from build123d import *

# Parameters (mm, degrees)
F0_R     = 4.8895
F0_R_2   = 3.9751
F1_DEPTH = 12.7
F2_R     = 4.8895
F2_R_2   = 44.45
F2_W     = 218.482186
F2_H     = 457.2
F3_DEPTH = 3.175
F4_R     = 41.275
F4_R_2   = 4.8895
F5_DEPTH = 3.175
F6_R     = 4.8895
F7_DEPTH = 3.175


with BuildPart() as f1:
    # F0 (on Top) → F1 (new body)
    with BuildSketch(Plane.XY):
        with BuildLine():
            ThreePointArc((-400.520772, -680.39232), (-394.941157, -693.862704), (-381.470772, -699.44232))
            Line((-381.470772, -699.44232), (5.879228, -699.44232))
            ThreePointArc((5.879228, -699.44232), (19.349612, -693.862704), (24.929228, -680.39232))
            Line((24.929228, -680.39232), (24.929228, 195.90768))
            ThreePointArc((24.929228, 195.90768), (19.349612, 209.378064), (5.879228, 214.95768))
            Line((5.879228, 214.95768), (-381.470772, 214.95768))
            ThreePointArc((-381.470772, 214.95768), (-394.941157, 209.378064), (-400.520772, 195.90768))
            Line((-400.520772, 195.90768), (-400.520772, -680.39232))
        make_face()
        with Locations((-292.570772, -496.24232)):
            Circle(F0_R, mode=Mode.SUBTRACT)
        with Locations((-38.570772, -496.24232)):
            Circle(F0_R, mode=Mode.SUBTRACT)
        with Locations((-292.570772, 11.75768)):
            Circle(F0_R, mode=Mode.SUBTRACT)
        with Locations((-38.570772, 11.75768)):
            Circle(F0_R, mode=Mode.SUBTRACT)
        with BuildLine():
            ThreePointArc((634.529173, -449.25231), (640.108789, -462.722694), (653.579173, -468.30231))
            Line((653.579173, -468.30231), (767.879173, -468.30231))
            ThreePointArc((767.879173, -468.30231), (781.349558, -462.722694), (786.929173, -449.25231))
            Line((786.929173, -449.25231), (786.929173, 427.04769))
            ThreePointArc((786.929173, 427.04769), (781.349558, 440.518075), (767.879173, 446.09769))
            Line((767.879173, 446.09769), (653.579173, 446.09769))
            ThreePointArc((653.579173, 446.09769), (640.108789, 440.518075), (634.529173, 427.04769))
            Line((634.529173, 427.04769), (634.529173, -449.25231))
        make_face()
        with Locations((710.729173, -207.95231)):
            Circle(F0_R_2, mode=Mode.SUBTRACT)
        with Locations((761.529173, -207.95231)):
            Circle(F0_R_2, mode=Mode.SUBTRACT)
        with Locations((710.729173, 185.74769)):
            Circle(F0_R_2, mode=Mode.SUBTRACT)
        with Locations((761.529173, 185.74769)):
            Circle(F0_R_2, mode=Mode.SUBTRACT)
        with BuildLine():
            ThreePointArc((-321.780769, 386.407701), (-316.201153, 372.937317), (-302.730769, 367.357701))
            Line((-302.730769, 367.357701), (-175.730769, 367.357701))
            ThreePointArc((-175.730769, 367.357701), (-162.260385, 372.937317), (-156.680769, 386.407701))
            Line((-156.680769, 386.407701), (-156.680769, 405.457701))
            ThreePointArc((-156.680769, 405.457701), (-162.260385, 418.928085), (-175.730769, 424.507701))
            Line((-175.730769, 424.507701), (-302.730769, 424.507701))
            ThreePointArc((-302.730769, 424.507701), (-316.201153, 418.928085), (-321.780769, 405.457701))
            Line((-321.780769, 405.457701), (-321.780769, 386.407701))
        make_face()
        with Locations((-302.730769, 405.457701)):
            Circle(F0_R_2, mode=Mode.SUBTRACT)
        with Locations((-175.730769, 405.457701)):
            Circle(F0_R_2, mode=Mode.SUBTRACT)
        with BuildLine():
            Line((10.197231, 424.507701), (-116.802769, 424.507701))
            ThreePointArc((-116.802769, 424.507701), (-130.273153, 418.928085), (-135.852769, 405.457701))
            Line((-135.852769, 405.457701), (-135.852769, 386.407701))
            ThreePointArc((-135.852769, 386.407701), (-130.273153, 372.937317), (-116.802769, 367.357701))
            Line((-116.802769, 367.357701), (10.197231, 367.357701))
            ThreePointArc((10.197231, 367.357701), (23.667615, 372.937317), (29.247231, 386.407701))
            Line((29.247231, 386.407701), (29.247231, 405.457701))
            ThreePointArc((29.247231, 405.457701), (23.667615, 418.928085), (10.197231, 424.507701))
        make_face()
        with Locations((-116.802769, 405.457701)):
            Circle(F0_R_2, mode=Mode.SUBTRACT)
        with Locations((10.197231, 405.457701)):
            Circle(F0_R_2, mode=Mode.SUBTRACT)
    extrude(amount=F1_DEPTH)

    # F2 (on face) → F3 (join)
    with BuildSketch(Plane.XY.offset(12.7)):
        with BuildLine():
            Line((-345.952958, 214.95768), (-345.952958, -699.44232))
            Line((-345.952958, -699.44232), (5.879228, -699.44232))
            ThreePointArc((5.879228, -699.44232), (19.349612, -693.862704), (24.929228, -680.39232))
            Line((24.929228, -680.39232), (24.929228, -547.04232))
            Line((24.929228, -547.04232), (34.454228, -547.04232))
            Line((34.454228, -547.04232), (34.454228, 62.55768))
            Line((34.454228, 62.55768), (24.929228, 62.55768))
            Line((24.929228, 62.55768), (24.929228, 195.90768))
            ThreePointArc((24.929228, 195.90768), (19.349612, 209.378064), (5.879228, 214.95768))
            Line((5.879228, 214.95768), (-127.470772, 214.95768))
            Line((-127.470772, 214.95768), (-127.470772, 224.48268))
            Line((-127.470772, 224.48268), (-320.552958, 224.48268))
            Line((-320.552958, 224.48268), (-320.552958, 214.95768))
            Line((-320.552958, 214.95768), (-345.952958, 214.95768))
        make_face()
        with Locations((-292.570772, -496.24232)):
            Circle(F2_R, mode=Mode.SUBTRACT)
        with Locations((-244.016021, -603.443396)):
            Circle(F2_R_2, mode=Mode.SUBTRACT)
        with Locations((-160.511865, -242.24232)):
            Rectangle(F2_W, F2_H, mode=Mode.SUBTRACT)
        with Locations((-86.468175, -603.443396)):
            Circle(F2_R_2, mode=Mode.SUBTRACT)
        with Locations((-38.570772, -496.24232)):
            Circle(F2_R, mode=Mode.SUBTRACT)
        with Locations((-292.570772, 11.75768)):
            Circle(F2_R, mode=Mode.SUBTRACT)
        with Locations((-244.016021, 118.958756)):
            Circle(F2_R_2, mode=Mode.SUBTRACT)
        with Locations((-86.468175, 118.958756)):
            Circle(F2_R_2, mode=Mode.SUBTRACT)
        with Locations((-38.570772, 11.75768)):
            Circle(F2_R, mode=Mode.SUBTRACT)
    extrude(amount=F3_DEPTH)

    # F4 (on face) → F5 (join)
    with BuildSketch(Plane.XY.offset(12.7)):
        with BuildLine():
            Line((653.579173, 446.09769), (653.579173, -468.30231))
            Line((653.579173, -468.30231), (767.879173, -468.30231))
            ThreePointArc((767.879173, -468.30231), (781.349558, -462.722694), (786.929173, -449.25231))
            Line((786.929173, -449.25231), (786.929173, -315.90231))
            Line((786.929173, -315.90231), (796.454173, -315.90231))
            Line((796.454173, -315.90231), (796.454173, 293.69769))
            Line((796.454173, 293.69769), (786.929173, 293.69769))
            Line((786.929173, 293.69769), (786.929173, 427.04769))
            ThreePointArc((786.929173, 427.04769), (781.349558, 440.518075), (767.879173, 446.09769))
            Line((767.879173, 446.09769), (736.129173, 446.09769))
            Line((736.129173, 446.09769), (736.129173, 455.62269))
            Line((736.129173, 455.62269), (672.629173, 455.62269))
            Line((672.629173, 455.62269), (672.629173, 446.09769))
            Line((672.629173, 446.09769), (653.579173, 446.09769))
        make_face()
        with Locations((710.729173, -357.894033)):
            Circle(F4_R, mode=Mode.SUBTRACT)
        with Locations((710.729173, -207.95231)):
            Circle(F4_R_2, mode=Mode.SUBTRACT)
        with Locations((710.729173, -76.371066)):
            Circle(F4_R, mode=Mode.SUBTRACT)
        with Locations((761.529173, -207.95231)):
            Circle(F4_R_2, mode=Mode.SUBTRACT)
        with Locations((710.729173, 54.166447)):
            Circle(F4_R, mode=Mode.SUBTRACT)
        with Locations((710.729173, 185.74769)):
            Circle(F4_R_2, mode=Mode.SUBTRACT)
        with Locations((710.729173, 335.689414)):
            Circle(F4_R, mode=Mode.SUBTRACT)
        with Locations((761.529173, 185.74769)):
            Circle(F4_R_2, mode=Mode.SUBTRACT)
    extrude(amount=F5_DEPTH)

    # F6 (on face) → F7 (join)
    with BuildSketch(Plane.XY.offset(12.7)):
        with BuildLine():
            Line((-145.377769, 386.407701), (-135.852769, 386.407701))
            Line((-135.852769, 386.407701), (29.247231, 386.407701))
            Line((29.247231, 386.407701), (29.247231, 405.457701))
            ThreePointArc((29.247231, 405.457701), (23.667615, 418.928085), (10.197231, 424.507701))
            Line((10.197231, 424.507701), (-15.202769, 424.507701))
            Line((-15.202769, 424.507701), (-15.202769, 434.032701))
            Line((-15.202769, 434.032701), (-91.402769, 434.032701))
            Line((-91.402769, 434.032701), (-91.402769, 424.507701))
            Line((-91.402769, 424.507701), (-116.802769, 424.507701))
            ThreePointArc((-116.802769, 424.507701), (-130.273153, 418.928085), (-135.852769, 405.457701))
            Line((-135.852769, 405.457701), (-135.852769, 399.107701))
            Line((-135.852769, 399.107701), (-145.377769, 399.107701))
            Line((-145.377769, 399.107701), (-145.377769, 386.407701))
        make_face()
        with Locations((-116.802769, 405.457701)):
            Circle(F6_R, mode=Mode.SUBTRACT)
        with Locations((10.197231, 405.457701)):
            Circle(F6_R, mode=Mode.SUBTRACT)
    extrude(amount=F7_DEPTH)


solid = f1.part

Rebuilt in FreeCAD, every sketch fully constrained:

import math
import FreeCAD as App
import Part
import Sketcher
Q = App.Units.Quantity

doc = App.newDocument("Part")
body = doc.addObject("PartDesign::Body", "Body")
body.AllowCompound = True

# Sketch on XY plane
sketch1 = body.newObject("Sketcher::SketchObject", "Sketch")
sketch1.AttachmentSupport = (doc.getObject("XY_Plane"), [""])
sketch1.MapMode = "FlatFace"
sketch1.addGeometry(Part.ArcOfCircle(Part.Circle(App.Vector(-381.470773, -680.392321, 0), App.Vector(0, 0, 1), 19.049999), math.radians(179.999997), math.radians(270.000003)), False)
sketch1.addGeometry(Part.LineSegment(App.Vector(-381.470772, -699.44232, 0), App.Vector(5.879228, -699.44232, 0)), False)
sketch1.addGeometry(Part.ArcOfCircle(Part.Circle(App.Vector(5.879227, -680.392319, 0), App.Vector(0, 0, 1), 19.050001), math.radians(-89.999998), math.radians(-0.000002)), False)
sketch1.addGeometry(Part.LineSegment(App.Vector(24.929228, -680.39232, 0), App.Vector(24.929228, 195.90768, 0)), False)
sketch1.addGeometry(Part.ArcOfCircle(Part.Circle(App.Vector(5.879227, 195.907679, 0), App.Vector(0, 0, 1), 19.050001), math.radians(0.000002), math.radians(89.999998)), False)
sketch1.addGeometry(Part.LineSegment(App.Vector(5.879228, 214.95768, 0), App.Vector(-381.470772, 214.95768, 0)), False)
sketch1.addGeometry(Part.ArcOfCircle(Part.Circle(App.Vector(-381.470773, 195.907681, 0), App.Vector(0, 0, 1), 19.049999), math.radians(89.999997), math.radians(180.000003)), False)
sketch1.addGeometry(Part.LineSegment(App.Vector(-400.520772, 195.90768, 0), App.Vector(-400.520772, -680.39232, 0)), False)
sketch1.addGeometry(Part.Circle(App.Vector(-292.570772, -496.24232, 0), App.Vector(0, 0, 1), 4.8895), False)
sketch1.addGeometry(Part.Circle(App.Vector(-38.570772, -496.24232, 0), App.Vector(0, 0, 1), 4.8895), False)
sketch1.addGeometry(Part.Circle(App.Vector(-292.570772, 11.75768, 0), App.Vector(0, 0, 1), 4.8895), False)
sketch1.addGeometry(Part.Circle(App.Vector(-38.570772, 11.75768, 0), App.Vector(0, 0, 1), 4.8895), False)
sketch1.addGeometry(Part.ArcOfCircle(Part.Circle(App.Vector(653.579174, -449.252309, 0), App.Vector(0, 0, 1), 19.050001), math.radians(-179.999998), math.radians(-90.000002)), False)
sketch1.addGeometry(Part.LineSegment(App.Vector(653.579173, -468.30231, 0), App.Vector(767.879173, -468.30231, 0)), False)
sketch1.addGeometry(Part.ArcOfCircle(Part.Circle(App.Vector(767.879174, -449.252311, 0), App.Vector(0, 0, 1), 19.049999), math.radians(-90.000003), math.radians(0.000003)), False)
sketch1.addGeometry(Part.LineSegment(App.Vector(786.929173, -449.25231, 0), App.Vector(786.929173, 427.04769, 0)), False)
sketch1.addGeometry(Part.ArcOfCircle(Part.Circle(App.Vector(767.879176, 427.047693, 0), App.Vector(0, 0, 1), 19.049997), math.radians(-0.000008), math.radians(90.000008)), False)
sketch1.addGeometry(Part.LineSegment(App.Vector(767.879173, 446.09769, 0), App.Vector(653.579173, 446.09769, 0)), False)
sketch1.addGeometry(Part.ArcOfCircle(Part.Circle(App.Vector(653.579172, 427.047691, 0), App.Vector(0, 0, 1), 19.049999), math.radians(89.999997), math.radians(180.000003)), False)
sketch1.addGeometry(Part.LineSegment(App.Vector(634.529173, 427.04769, 0), App.Vector(634.529173, -449.25231, 0)), False)
sketch1.addGeometry(Part.Circle(App.Vector(710.729173, -207.95231, 0), App.Vector(0, 0, 1), 3.9751), False)
sketch1.addGeometry(Part.Circle(App.Vector(761.529173, -207.95231, 0), App.Vector(0, 0, 1), 3.9751), False)
sketch1.addGeometry(Part.Circle(App.Vector(710.729173, 185.74769, 0), App.Vector(0, 0, 1), 3.9751), False)
sketch1.addGeometry(Part.Circle(App.Vector(761.529173, 185.74769, 0), App.Vector(0, 0, 1), 3.9751), False)
sketch1.addGeometry(Part.ArcOfCircle(Part.Circle(App.Vector(-302.730768, 386.407702, 0), App.Vector(0, 0, 1), 19.050001), math.radians(-179.999998), math.radians(-90.000002)), False)
sketch1.addGeometry(Part.LineSegment(App.Vector(-302.730769, 367.357701, 0), App.Vector(-175.730769, 367.357701, 0)), False)
sketch1.addGeometry(Part.ArcOfCircle(Part.Circle(App.Vector(-175.73077, 386.407702, 0), App.Vector(0, 0, 1), 19.050001), math.radians(-89.999998), math.radians(-0.000002)), False)
sketch1.addGeometry(Part.LineSegment(App.Vector(-156.680769, 386.407701, 0), App.Vector(-156.680769, 405.457701, 0)), False)
sketch1.addGeometry(Part.ArcOfCircle(Part.Circle(App.Vector(-175.73077, 405.4577, 0), App.Vector(0, 0, 1), 19.050001), math.radians(0.000002), math.radians(89.999998)), False)
sketch1.addGeometry(Part.LineSegment(App.Vector(-175.730769, 424.507701, 0), App.Vector(-302.730769, 424.507701, 0)), False)
sketch1.addGeometry(Part.ArcOfCircle(Part.Circle(App.Vector(-302.730768, 405.4577, 0), App.Vector(0, 0, 1), 19.050001), math.radians(90.000002), math.radians(179.999998)), False)
sketch1.addGeometry(Part.LineSegment(App.Vector(-321.780769, 405.457701, 0), App.Vector(-321.780769, 386.407701, 0)), False)
sketch1.addGeometry(Part.Circle(App.Vector(-302.730769, 405.457701, 0), App.Vector(0, 0, 1), 3.9751), False)
sketch1.addGeometry(Part.Circle(App.Vector(-175.730769, 405.457701, 0), App.Vector(0, 0, 1), 3.9751), False)
sketch1.addGeometry(Part.LineSegment(App.Vector(10.197231, 424.507701, 0), App.Vector(-116.802769, 424.507701, 0)), False)
sketch1.addGeometry(Part.ArcOfCircle(Part.Circle(App.Vector(-116.802768, 405.4577, 0), App.Vector(0, 0, 1), 19.050001), math.radians(90.000002), math.radians(179.999998)), False)
sketch1.addGeometry(Part.LineSegment(App.Vector(-135.852769, 405.457701, 0), App.Vector(-135.852769, 386.407701, 0)), False)
sketch1.addGeometry(Part.ArcOfCircle(Part.Circle(App.Vector(-116.802768, 386.407702, 0), App.Vector(0, 0, 1), 19.050001), math.radians(-179.999998), math.radians(-90.000002)), False)
sketch1.addGeometry(Part.LineSegment(App.Vector(-116.802769, 367.357701, 0), App.Vector(10.197231, 367.357701, 0)), False)
sketch1.addGeometry(Part.ArcOfCircle(Part.Circle(App.Vector(10.19723, 386.407702, 0), App.Vector(0, 0, 1), 19.050001), math.radians(-89.999998), math.radians(-0.000002)), False)
sketch1.addGeometry(Part.LineSegment(App.Vector(29.247231, 386.407701, 0), App.Vector(29.247231, 405.457701, 0)), False)
sketch1.addGeometry(Part.ArcOfCircle(Part.Circle(App.Vector(10.19723, 405.4577, 0), App.Vector(0, 0, 1), 19.050001), math.radians(0.000002), math.radians(89.999998)), False)
sketch1.addGeometry(Part.Circle(App.Vector(-116.802769, 405.457701, 0), App.Vector(0, 0, 1), 3.9751), False)
sketch1.addGeometry(Part.Circle(App.Vector(10.197231, 405.457701, 0), App.Vector(0, 0, 1), 3.9751), False)
sketch1.addConstraint(Sketcher.Constraint("Tangent", 0, 2, 1, 1))
sketch1.addConstraint(Sketcher.Constraint("Tangent", 1, 2, 2, 1))
sketch1.addConstraint(Sketcher.Constraint("Tangent", 2, 2, 3, 1))
sketch1.addConstraint(Sketcher.Constraint("Tangent", 3, 2, 4, 1))
sketch1.addConstraint(Sketcher.Constraint("Tangent", 4, 2, 5, 1))
sketch1.addConstraint(Sketcher.Constraint("Tangent", 5, 2, 6, 1))
sketch1.addConstraint(Sketcher.Constraint("Tangent", 6, 2, 7, 1))
sketch1.addConstraint(Sketcher.Constraint("Tangent", 7, 2, 0, 1))
sketch1.addConstraint(Sketcher.Constraint("Tangent", 12, 2, 13, 1))
sketch1.addConstraint(Sketcher.Constraint("Tangent", 13, 2, 14, 1))
sketch1.addConstraint(Sketcher.Constraint("Tangent", 14, 2, 15, 1))
sketch1.addConstraint(Sketcher.Constraint("Tangent", 15, 2, 16, 1))
sketch1.addConstraint(Sketcher.Constraint("Tangent", 16, 2, 17, 1))
sketch1.addConstraint(Sketcher.Constraint("Tangent", 17, 2, 18, 1))
sketch1.addConstraint(Sketcher.Constraint("Tangent", 18, 2, 19, 1))
sketch1.addConstraint(Sketcher.Constraint("Tangent", 19, 2, 12, 1))
sketch1.addConstraint(Sketcher.Constraint("Tangent", 24, 2, 25, 1))
sketch1.addConstraint(Sketcher.Constraint("Tangent", 25, 2, 26, 1))
sketch1.addConstraint(Sketcher.Constraint("Tangent", 26, 2, 27, 1))
sketch1.addConstraint(Sketcher.Constraint("Tangent", 27, 2, 28, 1))
sketch1.addConstraint(Sketcher.Constraint("Tangent", 28, 2, 29, 1))
sketch1.addConstraint(Sketcher.Constraint("Tangent", 29, 2, 30, 1))
sketch1.addConstraint(Sketcher.Constraint("Tangent", 30, 2, 31, 1))
sketch1.addConstraint(Sketcher.Constraint("Tangent", 31, 2, 24, 1))
sketch1.addConstraint(Sketcher.Constraint("Tangent", 34, 2, 35, 1))
sketch1.addConstraint(Sketcher.Constraint("Tangent", 35, 2, 36, 1))
sketch1.addConstraint(Sketcher.Constraint("Tangent", 36, 2, 37, 1))
sketch1.addConstraint(Sketcher.Constraint("Tangent", 37, 2, 38, 1))
sketch1.addConstraint(Sketcher.Constraint("Tangent", 38, 2, 39, 1))
sketch1.addConstraint(Sketcher.Constraint("Tangent", 39, 2, 40, 1))
sketch1.addConstraint(Sketcher.Constraint("Tangent", 40, 2, 41, 1))
sketch1.addConstraint(Sketcher.Constraint("Tangent", 41, 2, 34, 1))
sketch1.addConstraint(Sketcher.Constraint("Horizontal", 1))
sketch1.addConstraint(Sketcher.Constraint("Vertical", 3))
sketch1.addConstraint(Sketcher.Constraint("Horizontal", 5))
sketch1.addConstraint(Sketcher.Constraint("Vertical", 7))
sketch1.addConstraint(Sketcher.Constraint("Horizontal", 13))
sketch1.addConstraint(Sketcher.Constraint("Vertical", 15))
sketch1.addConstraint(Sketcher.Constraint("Horizontal", 17))
sketch1.addConstraint(Sketcher.Constraint("Vertical", 19))
sketch1.addConstraint(Sketcher.Constraint("Horizontal", 25))
sketch1.addConstraint(Sketcher.Constraint("Vertical", 27))
sketch1.addConstraint(Sketcher.Constraint("Horizontal", 29))
sketch1.addConstraint(Sketcher.Constraint("Vertical", 31))
sketch1.addConstraint(Sketcher.Constraint("Horizontal", 34))
sketch1.addConstraint(Sketcher.Constraint("Vertical", 36))
sketch1.addConstraint(Sketcher.Constraint("Horizontal", 38))
sketch1.addConstraint(Sketcher.Constraint("Vertical", 40))
sketch1.addConstraint(Sketcher.Constraint("Coincident", 32, 3, 30, 3))
sketch1.addConstraint(Sketcher.Constraint("Coincident", 33, 3, 28, 3))
sketch1.addConstraint(Sketcher.Constraint("Coincident", 42, 3, 35, 3))
sketch1.addConstraint(Sketcher.Constraint("Coincident", 43, 3, 41, 3))
sketch1.addConstraint(Sketcher.Constraint("Equal", 0, 2))
sketch1.addConstraint(Sketcher.Constraint("Equal", 2, 4))
sketch1.addConstraint(Sketcher.Constraint("Equal", 4, 6))
sketch1.addConstraint(Sketcher.Constraint("Equal", 8, 9))
sketch1.addConstraint(Sketcher.Constraint("Equal", 9, 10))
sketch1.addConstraint(Sketcher.Constraint("Equal", 10, 11))
sketch1.addConstraint(Sketcher.Constraint("Equal", 6, 12))
sketch1.addConstraint(Sketcher.Constraint("Equal", 12, 14))
sketch1.addConstraint(Sketcher.Constraint("Equal", 14, 16))
sketch1.addConstraint(Sketcher.Constraint("Equal", 16, 18))
sketch1.addConstraint(Sketcher.Constraint("Equal", 20, 21))
sketch1.addConstraint(Sketcher.Constraint("Equal", 21, 22))
sketch1.addConstraint(Sketcher.Constraint("Equal", 22, 23))
sketch1.addConstraint(Sketcher.Constraint("Equal", 18, 24))
sketch1.addConstraint(Sketcher.Constraint("Equal", 24, 26))
sketch1.addConstraint(Sketcher.Constraint("Equal", 26, 28))
sketch1.addConstraint(Sketcher.Constraint("Equal", 28, 30))
sketch1.addConstraint(Sketcher.Constraint("Equal", 23, 32))
sketch1.addConstraint(Sketcher.Constraint("Equal", 32, 33))
sketch1.addConstraint(Sketcher.Constraint("Equal", 30, 35))
sketch1.addConstraint(Sketcher.Constraint("Equal", 35, 37))
sketch1.addConstraint(Sketcher.Constraint("Equal", 37, 39))
sketch1.addConstraint(Sketcher.Constraint("Equal", 39, 41))
sketch1.addConstraint(Sketcher.Constraint("Equal", 33, 42))
sketch1.addConstraint(Sketcher.Constraint("Equal", 42, 43))
sketch1.addConstraint(Sketcher.Constraint("Horizontal", 8, 3, 9, 3))
sketch1.addConstraint(Sketcher.Constraint("Horizontal", 10, 3, 11, 3))
sketch1.addConstraint(Sketcher.Constraint("Horizontal", 20, 3, 21, 3))
sketch1.addConstraint(Sketcher.Constraint("Horizontal", 22, 3, 23, 3))
sketch1.addConstraint(Sketcher.Constraint("Horizontal", 33, 3, 35, 3))
sketch1.addConstraint(Sketcher.Constraint("Horizontal", 26, 3, 37, 3))
sketch1.addConstraint(Sketcher.Constraint("Vertical", 8, 3, 10, 3))
sketch1.addConstraint(Sketcher.Constraint("Vertical", 9, 3, 11, 3))
sketch1.addConstraint(Sketcher.Constraint("Vertical", 20, 3, 22, 3))
sketch1.addConstraint(Sketcher.Constraint("Vertical", 21, 3, 23, 3))
sketch1.addConstraint(Sketcher.Constraint("Equal", 29, 34))
sketch1.addConstraint(Sketcher.Constraint("Equal", 7, 15))
sketch1.addConstraint(Sketcher.Constraint("DistanceX", 25, 1, 25, 2, Q("5 in")))
sketch1.addConstraint(Sketcher.Constraint("Radius", 0, Q("0.75 in")))
sketch1.addConstraint(Sketcher.Constraint("Diameter", 8, Q("0.385 in")))
sketch1.addConstraint(Sketcher.Constraint("Diameter", 20, Q("0.313 in")))
sketch1.addConstraint(Sketcher.Constraint("DistanceX", 13, 1, 13, 2, Q("4.5 in")))
sketch1.addConstraint(Sketcher.Constraint("DistanceY", 3, 1, 3, 2, Q("34.5 in")))
sketch1.addConstraint(Sketcher.Constraint("DistanceX", 8, 3, 9, 3, Q("10 in")))
sketch1.addConstraint(Sketcher.Constraint("DistanceY", 8, 3, 10, 3, Q("20 in")))
sketch1.addConstraint(Sketcher.Constraint("DistanceY", 20, 3, 18, 3, Q("25 in")))
sketch1.addConstraint(Sketcher.Constraint("DistanceX", 20, 3, 21, 3, Q("2 in")))
sketch1.addConstraint(Sketcher.Constraint("DistanceY", 12, 3, 22, 3, Q("25 in")))
sketch1.addConstraint(Sketcher.Constraint("DistanceY", 0, 2, 8, 3, Q("8 in")))
sketch1.addConstraint(Sketcher.Constraint("DistanceX", 0, 3, 2, 2, Q("16 in")))
sketch1.addConstraint(Sketcher.Constraint("DistanceX", 21, 3, 14, 2, Q("1 in")))
sketch1.addConstraint(Sketcher.Constraint("DistanceY", 27, 1, 27, 2, Q("0.75 in")))
sketch1.addConstraint(Sketcher.Constraint("DistanceX", 0, 3, 8, 3, Q("3.5 in")))
sketch1.addConstraint(Sketcher.Constraint("DistanceX", 6, 3, 24, 3, Q("3.1000002 in")))
sketch1.addConstraint(Sketcher.Constraint("DistanceX", 33, 3, 35, 3, Q("2.32 in")))
sketch1.addConstraint(Sketcher.Constraint("DistanceY", -1, 1, 24, 3, Q("386.407702 mm")))
sketch1.addConstraint(Sketcher.Constraint("DistanceY", 0, 3, -1, 1, Q("680.392321 mm")))
sketch1.addConstraint(Sketcher.Constraint("DistanceX", 8, 3, -1, 1, Q("292.570772 mm")))
sketch1.addConstraint(Sketcher.Constraint("DistanceY", 12, 3, -1, 1, Q("449.252309 mm")))
sketch1.addConstraint(Sketcher.Constraint("DistanceX", -1, 1, 18, 3, Q("653.579172 mm")))
pad1 = body.newObject("PartDesign::Pad", "Pad")
pad1.Profile = sketch1
pad1.Length = Q("0.5 in")

# Sketch on XY plane
sketch2 = body.newObject("Sketcher::SketchObject", "Sketch001")
sketch2.AttachmentSupport = (doc.getObject("XY_Plane"), [""])
sketch2.MapMode = "FlatFace"
sketch2.AttachmentOffset = App.Placement(App.Vector(0, 0, 0.5 * 25.4), App.Rotation())
sketch2.addGeometry(Part.LineSegment(App.Vector(-345.952958, 214.95768, 0), App.Vector(-345.952958, -699.44232, 0)), False)
sketch2.addGeometry(Part.LineSegment(App.Vector(-345.952958, -699.44232, 0), App.Vector(5.879228, -699.44232, 0)), False)
sketch2.addGeometry(Part.ArcOfCircle(Part.Circle(App.Vector(5.879227, -680.392319, 0), App.Vector(0, 0, 1), 19.050001), math.radians(-89.999998), math.radians(-0.000002)), False)
sketch2.addGeometry(Part.LineSegment(App.Vector(24.929228, -680.39232, 0), App.Vector(24.929228, -547.04232, 0)), False)
sketch2.addGeometry(Part.LineSegment(App.Vector(24.929228, -547.04232, 0), App.Vector(34.454228, -547.04232, 0)), False)
sketch2.addGeometry(Part.LineSegment(App.Vector(34.454228, -547.04232, 0), App.Vector(34.454228, 62.55768, 0)), False)
sketch2.addGeometry(Part.LineSegment(App.Vector(34.454228, 62.55768, 0), App.Vector(24.929228, 62.55768, 0)), False)
sketch2.addGeometry(Part.LineSegment(App.Vector(24.929228, 62.55768, 0), App.Vector(24.929228, 195.90768, 0)), False)
sketch2.addGeometry(Part.ArcOfCircle(Part.Circle(App.Vector(5.879227, 195.907679, 0), App.Vector(0, 0, 1), 19.050001), math.radians(0.000002), math.radians(89.999998)), False)
sketch2.addGeometry(Part.LineSegment(App.Vector(5.879228, 214.95768, 0), App.Vector(-127.470772, 214.95768, 0)), False)
sketch2.addGeometry(Part.LineSegment(App.Vector(-127.470772, 214.95768, 0), App.Vector(-127.470772, 224.48268, 0)), False)
sketch2.addGeometry(Part.LineSegment(App.Vector(-127.470772, 224.48268, 0), App.Vector(-320.552958, 224.48268, 0)), False)
sketch2.addGeometry(Part.LineSegment(App.Vector(-320.552958, 224.48268, 0), App.Vector(-320.552958, 214.95768, 0)), False)
sketch2.addGeometry(Part.LineSegment(App.Vector(-320.552958, 214.95768, 0), App.Vector(-345.952958, 214.95768, 0)), False)
sketch2.addGeometry(Part.Circle(App.Vector(-244.016021, -603.443396, 0), App.Vector(0, 0, 1), 44.45), False)
sketch2.addGeometry(Part.Circle(App.Vector(-292.570772, -496.24232, 0), App.Vector(0, 0, 1), 4.8895), False)
sketch2.addGeometry(Part.Circle(App.Vector(-86.468175, -603.443396, 0), App.Vector(0, 0, 1), 44.45), False)
sketch2.addGeometry(Part.Circle(App.Vector(-38.570772, -496.24232, 0), App.Vector(0, 0, 1), 4.8895), False)
sketch2.addGeometry(Part.LineSegment(App.Vector(-51.270772, -470.84232, 0), App.Vector(-269.752958, -470.84232, 0)), False)
sketch2.addGeometry(Part.LineSegment(App.Vector(-269.752958, -470.84232, 0), App.Vector(-269.752958, -13.64232, 0)), False)
sketch2.addGeometry(Part.LineSegment(App.Vector(-269.752958, -13.64232, 0), App.Vector(-51.270772, -13.64232, 0)), False)
sketch2.addGeometry(Part.LineSegment(App.Vector(-51.270772, -13.64232, 0), App.Vector(-51.270772, -470.84232, 0)), False)
sketch2.addGeometry(Part.Circle(App.Vector(-292.570772, 11.75768, 0), App.Vector(0, 0, 1), 4.8895), False)
sketch2.addGeometry(Part.Circle(App.Vector(-244.016021, 118.958756, 0), App.Vector(0, 0, 1), 44.45), False)
sketch2.addGeometry(Part.Circle(App.Vector(-38.570772, 11.75768, 0), App.Vector(0, 0, 1), 4.8895), False)
sketch2.addGeometry(Part.Circle(App.Vector(-86.468175, 118.958756, 0), App.Vector(0, 0, 1), 44.45), False)
sketch2.addConstraint(Sketcher.Constraint("Coincident", 0, 2, 1, 1))
sketch2.addConstraint(Sketcher.Constraint("Tangent", 1, 2, 2, 1))
sketch2.addConstraint(Sketcher.Constraint("Tangent", 2, 2, 3, 1))
sketch2.addConstraint(Sketcher.Constraint("Coincident", 3, 2, 4, 1))
sketch2.addConstraint(Sketcher.Constraint("Coincident", 4, 2, 5, 1))
sketch2.addConstraint(Sketcher.Constraint("Coincident", 5, 2, 6, 1))
sketch2.addConstraint(Sketcher.Constraint("Coincident", 6, 2, 7, 1))
sketch2.addConstraint(Sketcher.Constraint("Tangent", 7, 2, 8, 1))
sketch2.addConstraint(Sketcher.Constraint("Tangent", 8, 2, 9, 1))
sketch2.addConstraint(Sketcher.Constraint("Coincident", 9, 2, 10, 1))
sketch2.addConstraint(Sketcher.Constraint("Coincident", 10, 2, 11, 1))
sketch2.addConstraint(Sketcher.Constraint("Coincident", 11, 2, 12, 1))
sketch2.addConstraint(Sketcher.Constraint("Coincident", 12, 2, 13, 1))
sketch2.addConstraint(Sketcher.Constraint("Coincident", 13, 2, 0, 1))
sketch2.addConstraint(Sketcher.Constraint("Coincident", 18, 2, 19, 1))
sketch2.addConstraint(Sketcher.Constraint("Coincident", 19, 2, 20, 1))
sketch2.addConstraint(Sketcher.Constraint("Coincident", 20, 2, 21, 1))
sketch2.addConstraint(Sketcher.Constraint("Coincident", 21, 2, 18, 1))
sketch2.addConstraint(Sketcher.Constraint("Vertical", 0))
sketch2.addConstraint(Sketcher.Constraint("Horizontal", 1))
sketch2.addConstraint(Sketcher.Constraint("Vertical", 3))
sketch2.addConstraint(Sketcher.Constraint("Horizontal", 4))
sketch2.addConstraint(Sketcher.Constraint("Vertical", 5))
sketch2.addConstraint(Sketcher.Constraint("Horizontal", 6))
sketch2.addConstraint(Sketcher.Constraint("Vertical", 7))
sketch2.addConstraint(Sketcher.Constraint("Horizontal", 9))
sketch2.addConstraint(Sketcher.Constraint("Vertical", 10))
sketch2.addConstraint(Sketcher.Constraint("Horizontal", 11))
sketch2.addConstraint(Sketcher.Constraint("Vertical", 12))
sketch2.addConstraint(Sketcher.Constraint("Horizontal", 13))
sketch2.addConstraint(Sketcher.Constraint("Horizontal", 18))
sketch2.addConstraint(Sketcher.Constraint("Vertical", 19))
sketch2.addConstraint(Sketcher.Constraint("Horizontal", 20))
sketch2.addConstraint(Sketcher.Constraint("Vertical", 21))
sketch2.addConstraint(Sketcher.Constraint("Equal", 2, 8))
sketch2.addConstraint(Sketcher.Constraint("Equal", 14, 16))
sketch2.addConstraint(Sketcher.Constraint("Equal", 15, 17))
sketch2.addConstraint(Sketcher.Constraint("Equal", 17, 22))
sketch2.addConstraint(Sketcher.Constraint("Equal", 16, 23))
sketch2.addConstraint(Sketcher.Constraint("Equal", 22, 24))
sketch2.addConstraint(Sketcher.Constraint("Equal", 23, 25))
sketch2.addConstraint(Sketcher.Constraint("Horizontal", 14, 3, 16, 3))
sketch2.addConstraint(Sketcher.Constraint("Horizontal", 15, 3, 17, 3))
sketch2.addConstraint(Sketcher.Constraint("Horizontal", 22, 3, 24, 3))
sketch2.addConstraint(Sketcher.Constraint("Horizontal", 23, 3, 25, 3))
sketch2.addConstraint(Sketcher.Constraint("Horizontal", 9, 2, 12, 2))
sketch2.addConstraint(Sketcher.Constraint("Vertical", 2, 3, 8, 3))
sketch2.addConstraint(Sketcher.Constraint("Vertical", 15, 3, 22, 3))
sketch2.addConstraint(Sketcher.Constraint("Vertical", 14, 3, 23, 3))
sketch2.addConstraint(Sketcher.Constraint("Vertical", 17, 3, 24, 3))
sketch2.addConstraint(Sketcher.Constraint("Vertical", 16, 3, 25, 3))
sketch2.addConstraint(Sketcher.Constraint("Equal", 9, 3))
sketch2.addConstraint(Sketcher.Constraint("Equal", 3, 7))
sketch2.addConstraint(Sketcher.Constraint("Equal", 6, 10))
sketch2.addConstraint(Sketcher.Constraint("Diameter", 14, Q("3.5 in")))
sketch2.addConstraint(Sketcher.Constraint("DistanceX", 13, 2, 13, 1, Q("1 in")))
sketch2.addConstraint(Sketcher.Constraint("DistanceY", 0, 2, 0, 1, Q("36 in")))
sketch2.addConstraint(Sketcher.Constraint("DistanceY", 5, 1, 5, 2, Q("24 in")))
sketch2.addConstraint(Sketcher.Constraint("DistanceY", 19, 1, 19, 2, Q("18 in")))
sketch2.addConstraint(Sketcher.Constraint("Radius", 2, Q("0.75 in")))
sketch2.addConstraint(Sketcher.Constraint("Diameter", 15, Q("0.385 in")))
sketch2.addConstraint(Sketcher.Constraint("DistanceX", 15, 3, 17, 3, Q("10 in")))
sketch2.addConstraint(Sketcher.Constraint("DistanceY", 15, 3, 22, 3, Q("20 in")))
sketch2.addConstraint(Sketcher.Constraint("DistanceY", 0, 2, 15, 3, Q("8 in")))
sketch2.addConstraint(Sketcher.Constraint("DistanceY", 15, 3, 18, 2, Q("1 in")))
sketch2.addConstraint(Sketcher.Constraint("DistanceX", 0, 2, 18, 2, Q("3 in")))
sketch2.addConstraint(Sketcher.Constraint("DistanceX", 20, 2, 6, 2, Q("3 in")))
sketch2.addConstraint(Sketcher.Constraint("DistanceX", 17, 3, 2, 2, Q("2.5 in")))
sketch2.addConstraint(Sketcher.Constraint("DistanceX", 4, 1, 4, 2, Q("0.375 in")))
sketch2.addConstraint(Sketcher.Constraint("DistanceX", 1, 1, 1, 2, Q("351.832186 mm")))
sketch2.addConstraint(Sketcher.Constraint("DistanceY", 2, 3, -1, 1, Q("680.392319 mm")))
sketch2.addConstraint(Sketcher.Constraint("DistanceX", 14, 3, -1, 1, Q("244.016021 mm")))
sketch2.addConstraint(Sketcher.Constraint("DistanceX", 15, 3, -1, 1, Q("292.570772 mm")))
sketch2.addConstraint(Sketcher.Constraint("DistanceY", 14, 3, 23, 3, Q("722.402152 mm")))
sketch2.addConstraint(Sketcher.Constraint("DistanceY", 14, 3, -1, 1, Q("603.443396 mm")))
sketch2.addConstraint(Sketcher.Constraint("DistanceX", 16, 3, -1, 1, Q("86.468175 mm")))
pad2 = body.newObject("PartDesign::Pad", "Pad001")
pad2.Profile = sketch2
pad2.Length = Q("0.125 in")

# Sketch on XY plane
sketch3 = body.newObject("Sketcher::SketchObject", "Sketch002")
sketch3.AttachmentSupport = (doc.getObject("XY_Plane"), [""])
sketch3.MapMode = "FlatFace"
sketch3.AttachmentOffset = App.Placement(App.Vector(0, 0, 0.5 * 25.4), App.Rotation())
sketch3.addGeometry(Part.LineSegment(App.Vector(653.579173, 446.09769, 0), App.Vector(653.579173, -468.30231, 0)), False)
sketch3.addGeometry(Part.LineSegment(App.Vector(653.579173, -468.30231, 0), App.Vector(767.879173, -468.30231, 0)), False)
sketch3.addGeometry(Part.ArcOfCircle(Part.Circle(App.Vector(767.879174, -449.252311, 0), App.Vector(0, 0, 1), 19.049999), math.radians(-90.000003), math.radians(0.000003)), False)
sketch3.addGeometry(Part.LineSegment(App.Vector(786.929173, -449.25231, 0), App.Vector(786.929173, -315.90231, 0)), False)
sketch3.addGeometry(Part.LineSegment(App.Vector(786.929173, -315.90231, 0), App.Vector(796.454173, -315.90231, 0)), False)
sketch3.addGeometry(Part.LineSegment(App.Vector(796.454173, -315.90231, 0), App.Vector(796.454173, 293.69769, 0)), False)
sketch3.addGeometry(Part.LineSegment(App.Vector(796.454173, 293.69769, 0), App.Vector(786.929173, 293.69769, 0)), False)
sketch3.addGeometry(Part.LineSegment(App.Vector(786.929173, 293.69769, 0), App.Vector(786.929173, 427.04769, 0)), False)
sketch3.addGeometry(Part.ArcOfCircle(Part.Circle(App.Vector(767.879176, 427.047693, 0), App.Vector(0, 0, 1), 19.049997), math.radians(-0.000008), math.radians(90.000008)), False)
sketch3.addGeometry(Part.LineSegment(App.Vector(767.879173, 446.09769, 0), App.Vector(736.129173, 446.09769, 0)), False)
sketch3.addGeometry(Part.LineSegment(App.Vector(736.129173, 446.09769, 0), App.Vector(736.129173, 455.62269, 0)), False)
sketch3.addGeometry(Part.LineSegment(App.Vector(736.129173, 455.62269, 0), App.Vector(672.629173, 455.62269, 0)), False)
sketch3.addGeometry(Part.LineSegment(App.Vector(672.629173, 455.62269, 0), App.Vector(672.629173, 446.09769, 0)), False)
sketch3.addGeometry(Part.LineSegment(App.Vector(672.629173, 446.09769, 0), App.Vector(653.579173, 446.09769, 0)), False)
sketch3.addGeometry(Part.Circle(App.Vector(710.729173, -357.894033, 0), App.Vector(0, 0, 1), 41.275), False)
sketch3.addGeometry(Part.Circle(App.Vector(710.729173, -207.95231, 0), App.Vector(0, 0, 1), 4.8895), False)
sketch3.addGeometry(Part.Circle(App.Vector(710.729173, -76.371066, 0), App.Vector(0, 0, 1), 41.275), False)
sketch3.addGeometry(Part.Circle(App.Vector(761.529173, -207.95231, 0), App.Vector(0, 0, 1), 4.8895), False)
sketch3.addGeometry(Part.Circle(App.Vector(710.729173, 54.166447, 0), App.Vector(0, 0, 1), 41.275), False)
sketch3.addGeometry(Part.Circle(App.Vector(710.729173, 185.74769, 0), App.Vector(0, 0, 1), 4.8895), False)
sketch3.addGeometry(Part.Circle(App.Vector(710.729173, 335.689414, 0), App.Vector(0, 0, 1), 41.275), False)
sketch3.addGeometry(Part.Circle(App.Vector(761.529173, 185.74769, 0), App.Vector(0, 0, 1), 4.8895), False)
sketch3.addConstraint(Sketcher.Constraint("Coincident", 0, 2, 1, 1))
sketch3.addConstraint(Sketcher.Constraint("Tangent", 1, 2, 2, 1))
sketch3.addConstraint(Sketcher.Constraint("Tangent", 2, 2, 3, 1))
sketch3.addConstraint(Sketcher.Constraint("Coincident", 3, 2, 4, 1))
sketch3.addConstraint(Sketcher.Constraint("Coincident", 4, 2, 5, 1))
sketch3.addConstraint(Sketcher.Constraint("Coincident", 5, 2, 6, 1))
sketch3.addConstraint(Sketcher.Constraint("Coincident", 6, 2, 7, 1))
sketch3.addConstraint(Sketcher.Constraint("Tangent", 7, 2, 8, 1))
sketch3.addConstraint(Sketcher.Constraint("Tangent", 8, 2, 9, 1))
sketch3.addConstraint(Sketcher.Constraint("Coincident", 9, 2, 10, 1))
sketch3.addConstraint(Sketcher.Constraint("Coincident", 10, 2, 11, 1))
sketch3.addConstraint(Sketcher.Constraint("Coincident", 11, 2, 12, 1))
sketch3.addConstraint(Sketcher.Constraint("Coincident", 12, 2, 13, 1))
sketch3.addConstraint(Sketcher.Constraint("Coincident", 13, 2, 0, 1))
sketch3.addConstraint(Sketcher.Constraint("Vertical", 0))
sketch3.addConstraint(Sketcher.Constraint("Horizontal", 1))
sketch3.addConstraint(Sketcher.Constraint("Vertical", 3))
sketch3.addConstraint(Sketcher.Constraint("Horizontal", 4))
sketch3.addConstraint(Sketcher.Constraint("Vertical", 5))
sketch3.addConstraint(Sketcher.Constraint("Horizontal", 6))
sketch3.addConstraint(Sketcher.Constraint("Vertical", 7))
sketch3.addConstraint(Sketcher.Constraint("Horizontal", 9))
sketch3.addConstraint(Sketcher.Constraint("Vertical", 10))
sketch3.addConstraint(Sketcher.Constraint("Horizontal", 11))
sketch3.addConstraint(Sketcher.Constraint("Vertical", 12))
sketch3.addConstraint(Sketcher.Constraint("Horizontal", 13))
sketch3.addConstraint(Sketcher.Constraint("Equal", 2, 8))
sketch3.addConstraint(Sketcher.Constraint("Equal", 14, 16))
sketch3.addConstraint(Sketcher.Constraint("Equal", 15, 17))
sketch3.addConstraint(Sketcher.Constraint("Equal", 16, 18))
sketch3.addConstraint(Sketcher.Constraint("Equal", 17, 19))
sketch3.addConstraint(Sketcher.Constraint("Equal", 18, 20))
sketch3.addConstraint(Sketcher.Constraint("Equal", 19, 21))
sketch3.addConstraint(Sketcher.Constraint("Horizontal", 15, 3, 17, 3))
sketch3.addConstraint(Sketcher.Constraint("Horizontal", 19, 3, 21, 3))
sketch3.addConstraint(Sketcher.Constraint("Horizontal", 9, 2, 12, 2))
sketch3.addConstraint(Sketcher.Constraint("Vertical", 2, 3, 8, 3))
sketch3.addConstraint(Sketcher.Constraint("Vertical", 14, 3, 15, 3))
sketch3.addConstraint(Sketcher.Constraint("Vertical", 15, 3, 16, 3))
sketch3.addConstraint(Sketcher.Constraint("Vertical", 16, 3, 18, 3))
sketch3.addConstraint(Sketcher.Constraint("Vertical", 18, 3, 19, 3))
sketch3.addConstraint(Sketcher.Constraint("Vertical", 19, 3, 20, 3))
sketch3.addConstraint(Sketcher.Constraint("Vertical", 17, 3, 21, 3))
sketch3.addConstraint(Sketcher.Constraint("Equal", 3, 7))
sketch3.addConstraint(Sketcher.Constraint("Equal", 6, 10))
sketch3.addConstraint(Sketcher.Constraint("Diameter", 14, Q("3.25 in")))
sketch3.addConstraint(Sketcher.Constraint("DistanceY", 0, 2, 0, 1, Q("36 in")))
sketch3.addConstraint(Sketcher.Constraint("DistanceY", 5, 1, 5, 2, Q("24 in")))
sketch3.addConstraint(Sketcher.Constraint("Radius", 2, Q("0.75 in")))
sketch3.addConstraint(Sketcher.Constraint("Diameter", 15, Q("0.385 in")))
sketch3.addConstraint(Sketcher.Constraint("DistanceX", 1, 1, 1, 2, Q("4.5 in")))
sketch3.addConstraint(Sketcher.Constraint("DistanceX", 11, 2, 11, 1, Q("2.5 in")))
sketch3.addConstraint(Sketcher.Constraint("DistanceY", 15, 3, 8, 3, Q("25.0000001 in")))
sketch3.addConstraint(Sketcher.Constraint("DistanceX", 15, 3, 17, 3, Q("2 in")))
sketch3.addConstraint(Sketcher.Constraint("DistanceX", 14, 3, 2, 2, Q("3 in")))
sketch3.addConstraint(Sketcher.Constraint("DistanceX", 9, 2, 7, 2, Q("2 in")))
sketch3.addConstraint(Sketcher.Constraint("DistanceY", 19, 3, 8, 3, Q("9.5000001 in")))
sketch3.addConstraint(Sketcher.Constraint("DistanceX", 4, 1, 4, 2, Q("0.375 in")))
sketch3.addConstraint(Sketcher.Constraint("DistanceY", 2, 3, -1, 1, Q("449.252311 mm")))
sketch3.addConstraint(Sketcher.Constraint("DistanceY", 2, 3, 14, 3, Q("91.358278 mm")))
sketch3.addConstraint(Sketcher.Constraint("DistanceY", 16, 3, 8, 3, Q("503.418759 mm")))
sketch3.addConstraint(Sketcher.Constraint("DistanceY", 14, 3, 18, 3, Q("412.06048 mm")))
sketch3.addConstraint(Sketcher.Constraint("DistanceY", 20, 3, 8, 3, Q("91.358279 mm")))
sketch3.addConstraint(Sketcher.Constraint("DistanceX", -1, 1, 2, 3, Q("767.879174 mm")))
pad3 = body.newObject("PartDesign::Pad", "Pad002")
pad3.Profile = sketch3
pad3.Length = Q("0.125 in")

# Sketch on XY plane
sketch4 = body.newObject("Sketcher::SketchObject", "Sketch003")
sketch4.AttachmentSupport = (doc.getObject("XY_Plane"), [""])
sketch4.MapMode = "FlatFace"
sketch4.AttachmentOffset = App.Placement(App.Vector(0, 0, 0.5 * 25.4), App.Rotation())
sketch4.addGeometry(Part.LineSegment(App.Vector(-145.377769, 386.407701, 0), App.Vector(29.247231, 386.407701, 0)), False)
sketch4.addGeometry(Part.LineSegment(App.Vector(29.247231, 386.407701, 0), App.Vector(29.247231, 405.457701, 0)), False)
sketch4.addGeometry(Part.ArcOfCircle(Part.Circle(App.Vector(10.19723, 405.4577, 0), App.Vector(0, 0, 1), 19.050001), math.radians(0.000002), math.radians(89.999998)), False)
sketch4.addGeometry(Part.LineSegment(App.Vector(10.197231, 424.507701, 0), App.Vector(-15.202769, 424.507701, 0)), False)
sketch4.addGeometry(Part.LineSegment(App.Vector(-15.202769, 424.507701, 0), App.Vector(-15.202769, 434.032701, 0)), False)
sketch4.addGeometry(Part.LineSegment(App.Vector(-15.202769, 434.032701, 0), App.Vector(-91.402769, 434.032701, 0)), False)
sketch4.addGeometry(Part.LineSegment(App.Vector(-91.402769, 434.032701, 0), App.Vector(-91.402769, 424.507701, 0)), False)
sketch4.addGeometry(Part.LineSegment(App.Vector(-91.402769, 424.507701, 0), App.Vector(-116.802769, 424.507701, 0)), False)
sketch4.addGeometry(Part.ArcOfCircle(Part.Circle(App.Vector(-116.802768, 405.4577, 0), App.Vector(0, 0, 1), 19.050001), math.radians(90.000002), math.radians(179.999998)), False)
sketch4.addGeometry(Part.LineSegment(App.Vector(-135.852769, 405.457701, 0), App.Vector(-135.852769, 399.107701, 0)), False)
sketch4.addGeometry(Part.LineSegment(App.Vector(-135.852769, 399.107701, 0), App.Vector(-145.377769, 399.107701, 0)), False)
sketch4.addGeometry(Part.LineSegment(App.Vector(-145.377769, 399.107701, 0), App.Vector(-145.377769, 386.407701, 0)), False)
sketch4.addGeometry(Part.Circle(App.Vector(-116.802769, 405.457701, 0), App.Vector(0, 0, 1), 4.8895), False)
sketch4.addGeometry(Part.Circle(App.Vector(10.197231, 405.457701, 0), App.Vector(0, 0, 1), 4.8895), False)
sketch4.addConstraint(Sketcher.Constraint("Coincident", 0, 2, 1, 1))
sketch4.addConstraint(Sketcher.Constraint("Tangent", 1, 2, 2, 1))
sketch4.addConstraint(Sketcher.Constraint("Tangent", 2, 2, 3, 1))
sketch4.addConstraint(Sketcher.Constraint("Coincident", 3, 2, 4, 1))
sketch4.addConstraint(Sketcher.Constraint("Coincident", 4, 2, 5, 1))
sketch4.addConstraint(Sketcher.Constraint("Coincident", 5, 2, 6, 1))
sketch4.addConstraint(Sketcher.Constraint("Coincident", 6, 2, 7, 1))
sketch4.addConstraint(Sketcher.Constraint("Tangent", 7, 2, 8, 1))
sketch4.addConstraint(Sketcher.Constraint("Tangent", 8, 2, 9, 1))
sketch4.addConstraint(Sketcher.Constraint("Coincident", 9, 2, 10, 1))
sketch4.addConstraint(Sketcher.Constraint("Coincident", 10, 2, 11, 1))
sketch4.addConstraint(Sketcher.Constraint("Coincident", 11, 2, 0, 1))
sketch4.addConstraint(Sketcher.Constraint("Horizontal", 0))
sketch4.addConstraint(Sketcher.Constraint("Vertical", 1))
sketch4.addConstraint(Sketcher.Constraint("Horizontal", 3))
sketch4.addConstraint(Sketcher.Constraint("Vertical", 4))
sketch4.addConstraint(Sketcher.Constraint("Horizontal", 5))
sketch4.addConstraint(Sketcher.Constraint("Vertical", 6))
sketch4.addConstraint(Sketcher.Constraint("Horizontal", 7))
sketch4.addConstraint(Sketcher.Constraint("Vertical", 9))
sketch4.addConstraint(Sketcher.Constraint("Horizontal", 10))
sketch4.addConstraint(Sketcher.Constraint("Vertical", 11))
sketch4.addConstraint(Sketcher.Constraint("Coincident", 12, 3, 8, 3))
sketch4.addConstraint(Sketcher.Constraint("Coincident", 13, 3, 2, 3))
sketch4.addConstraint(Sketcher.Constraint("Equal", 2, 8))
sketch4.addConstraint(Sketcher.Constraint("Equal", 12, 13))
sketch4.addConstraint(Sketcher.Constraint("Horizontal", 2, 3, 8, 3))
sketch4.addConstraint(Sketcher.Constraint("Equal", 3, 7))
sketch4.addConstraint(Sketcher.Constraint("Equal", 10, 4))
sketch4.addConstraint(Sketcher.Constraint("DistanceX", 3, 2, 3, 1, Q("1 in")))
sketch4.addConstraint(Sketcher.Constraint("DistanceX", 5, 2, 5, 1, Q("3 in")))
sketch4.addConstraint(Sketcher.Constraint("Radius", 2, Q("0.75 in")))
sketch4.addConstraint(Sketcher.Constraint("Diameter", 12, Q("0.385 in")))
sketch4.addConstraint(Sketcher.Constraint("DistanceY", 11, 2, 11, 1, Q("0.5 in")))
sketch4.addConstraint(Sketcher.Constraint("DistanceY", 9, 2, 7, 2, Q("1 in")))
sketch4.addConstraint(Sketcher.Constraint("DistanceX", 0, 1, 0, 2, Q("6.875 in")))
sketch4.addConstraint(Sketcher.Constraint("DistanceY", -1, 1, 2, 3, Q("405.4577 mm")))
sketch4.addConstraint(Sketcher.Constraint("DistanceX", -1, 1, 2, 3, Q("10.19723 mm")))
pad4 = body.newObject("PartDesign::Pad", "Pad003")
pad4.Profile = sketch4
pad4.Length = Q("0.125 in")

doc.recompute()
